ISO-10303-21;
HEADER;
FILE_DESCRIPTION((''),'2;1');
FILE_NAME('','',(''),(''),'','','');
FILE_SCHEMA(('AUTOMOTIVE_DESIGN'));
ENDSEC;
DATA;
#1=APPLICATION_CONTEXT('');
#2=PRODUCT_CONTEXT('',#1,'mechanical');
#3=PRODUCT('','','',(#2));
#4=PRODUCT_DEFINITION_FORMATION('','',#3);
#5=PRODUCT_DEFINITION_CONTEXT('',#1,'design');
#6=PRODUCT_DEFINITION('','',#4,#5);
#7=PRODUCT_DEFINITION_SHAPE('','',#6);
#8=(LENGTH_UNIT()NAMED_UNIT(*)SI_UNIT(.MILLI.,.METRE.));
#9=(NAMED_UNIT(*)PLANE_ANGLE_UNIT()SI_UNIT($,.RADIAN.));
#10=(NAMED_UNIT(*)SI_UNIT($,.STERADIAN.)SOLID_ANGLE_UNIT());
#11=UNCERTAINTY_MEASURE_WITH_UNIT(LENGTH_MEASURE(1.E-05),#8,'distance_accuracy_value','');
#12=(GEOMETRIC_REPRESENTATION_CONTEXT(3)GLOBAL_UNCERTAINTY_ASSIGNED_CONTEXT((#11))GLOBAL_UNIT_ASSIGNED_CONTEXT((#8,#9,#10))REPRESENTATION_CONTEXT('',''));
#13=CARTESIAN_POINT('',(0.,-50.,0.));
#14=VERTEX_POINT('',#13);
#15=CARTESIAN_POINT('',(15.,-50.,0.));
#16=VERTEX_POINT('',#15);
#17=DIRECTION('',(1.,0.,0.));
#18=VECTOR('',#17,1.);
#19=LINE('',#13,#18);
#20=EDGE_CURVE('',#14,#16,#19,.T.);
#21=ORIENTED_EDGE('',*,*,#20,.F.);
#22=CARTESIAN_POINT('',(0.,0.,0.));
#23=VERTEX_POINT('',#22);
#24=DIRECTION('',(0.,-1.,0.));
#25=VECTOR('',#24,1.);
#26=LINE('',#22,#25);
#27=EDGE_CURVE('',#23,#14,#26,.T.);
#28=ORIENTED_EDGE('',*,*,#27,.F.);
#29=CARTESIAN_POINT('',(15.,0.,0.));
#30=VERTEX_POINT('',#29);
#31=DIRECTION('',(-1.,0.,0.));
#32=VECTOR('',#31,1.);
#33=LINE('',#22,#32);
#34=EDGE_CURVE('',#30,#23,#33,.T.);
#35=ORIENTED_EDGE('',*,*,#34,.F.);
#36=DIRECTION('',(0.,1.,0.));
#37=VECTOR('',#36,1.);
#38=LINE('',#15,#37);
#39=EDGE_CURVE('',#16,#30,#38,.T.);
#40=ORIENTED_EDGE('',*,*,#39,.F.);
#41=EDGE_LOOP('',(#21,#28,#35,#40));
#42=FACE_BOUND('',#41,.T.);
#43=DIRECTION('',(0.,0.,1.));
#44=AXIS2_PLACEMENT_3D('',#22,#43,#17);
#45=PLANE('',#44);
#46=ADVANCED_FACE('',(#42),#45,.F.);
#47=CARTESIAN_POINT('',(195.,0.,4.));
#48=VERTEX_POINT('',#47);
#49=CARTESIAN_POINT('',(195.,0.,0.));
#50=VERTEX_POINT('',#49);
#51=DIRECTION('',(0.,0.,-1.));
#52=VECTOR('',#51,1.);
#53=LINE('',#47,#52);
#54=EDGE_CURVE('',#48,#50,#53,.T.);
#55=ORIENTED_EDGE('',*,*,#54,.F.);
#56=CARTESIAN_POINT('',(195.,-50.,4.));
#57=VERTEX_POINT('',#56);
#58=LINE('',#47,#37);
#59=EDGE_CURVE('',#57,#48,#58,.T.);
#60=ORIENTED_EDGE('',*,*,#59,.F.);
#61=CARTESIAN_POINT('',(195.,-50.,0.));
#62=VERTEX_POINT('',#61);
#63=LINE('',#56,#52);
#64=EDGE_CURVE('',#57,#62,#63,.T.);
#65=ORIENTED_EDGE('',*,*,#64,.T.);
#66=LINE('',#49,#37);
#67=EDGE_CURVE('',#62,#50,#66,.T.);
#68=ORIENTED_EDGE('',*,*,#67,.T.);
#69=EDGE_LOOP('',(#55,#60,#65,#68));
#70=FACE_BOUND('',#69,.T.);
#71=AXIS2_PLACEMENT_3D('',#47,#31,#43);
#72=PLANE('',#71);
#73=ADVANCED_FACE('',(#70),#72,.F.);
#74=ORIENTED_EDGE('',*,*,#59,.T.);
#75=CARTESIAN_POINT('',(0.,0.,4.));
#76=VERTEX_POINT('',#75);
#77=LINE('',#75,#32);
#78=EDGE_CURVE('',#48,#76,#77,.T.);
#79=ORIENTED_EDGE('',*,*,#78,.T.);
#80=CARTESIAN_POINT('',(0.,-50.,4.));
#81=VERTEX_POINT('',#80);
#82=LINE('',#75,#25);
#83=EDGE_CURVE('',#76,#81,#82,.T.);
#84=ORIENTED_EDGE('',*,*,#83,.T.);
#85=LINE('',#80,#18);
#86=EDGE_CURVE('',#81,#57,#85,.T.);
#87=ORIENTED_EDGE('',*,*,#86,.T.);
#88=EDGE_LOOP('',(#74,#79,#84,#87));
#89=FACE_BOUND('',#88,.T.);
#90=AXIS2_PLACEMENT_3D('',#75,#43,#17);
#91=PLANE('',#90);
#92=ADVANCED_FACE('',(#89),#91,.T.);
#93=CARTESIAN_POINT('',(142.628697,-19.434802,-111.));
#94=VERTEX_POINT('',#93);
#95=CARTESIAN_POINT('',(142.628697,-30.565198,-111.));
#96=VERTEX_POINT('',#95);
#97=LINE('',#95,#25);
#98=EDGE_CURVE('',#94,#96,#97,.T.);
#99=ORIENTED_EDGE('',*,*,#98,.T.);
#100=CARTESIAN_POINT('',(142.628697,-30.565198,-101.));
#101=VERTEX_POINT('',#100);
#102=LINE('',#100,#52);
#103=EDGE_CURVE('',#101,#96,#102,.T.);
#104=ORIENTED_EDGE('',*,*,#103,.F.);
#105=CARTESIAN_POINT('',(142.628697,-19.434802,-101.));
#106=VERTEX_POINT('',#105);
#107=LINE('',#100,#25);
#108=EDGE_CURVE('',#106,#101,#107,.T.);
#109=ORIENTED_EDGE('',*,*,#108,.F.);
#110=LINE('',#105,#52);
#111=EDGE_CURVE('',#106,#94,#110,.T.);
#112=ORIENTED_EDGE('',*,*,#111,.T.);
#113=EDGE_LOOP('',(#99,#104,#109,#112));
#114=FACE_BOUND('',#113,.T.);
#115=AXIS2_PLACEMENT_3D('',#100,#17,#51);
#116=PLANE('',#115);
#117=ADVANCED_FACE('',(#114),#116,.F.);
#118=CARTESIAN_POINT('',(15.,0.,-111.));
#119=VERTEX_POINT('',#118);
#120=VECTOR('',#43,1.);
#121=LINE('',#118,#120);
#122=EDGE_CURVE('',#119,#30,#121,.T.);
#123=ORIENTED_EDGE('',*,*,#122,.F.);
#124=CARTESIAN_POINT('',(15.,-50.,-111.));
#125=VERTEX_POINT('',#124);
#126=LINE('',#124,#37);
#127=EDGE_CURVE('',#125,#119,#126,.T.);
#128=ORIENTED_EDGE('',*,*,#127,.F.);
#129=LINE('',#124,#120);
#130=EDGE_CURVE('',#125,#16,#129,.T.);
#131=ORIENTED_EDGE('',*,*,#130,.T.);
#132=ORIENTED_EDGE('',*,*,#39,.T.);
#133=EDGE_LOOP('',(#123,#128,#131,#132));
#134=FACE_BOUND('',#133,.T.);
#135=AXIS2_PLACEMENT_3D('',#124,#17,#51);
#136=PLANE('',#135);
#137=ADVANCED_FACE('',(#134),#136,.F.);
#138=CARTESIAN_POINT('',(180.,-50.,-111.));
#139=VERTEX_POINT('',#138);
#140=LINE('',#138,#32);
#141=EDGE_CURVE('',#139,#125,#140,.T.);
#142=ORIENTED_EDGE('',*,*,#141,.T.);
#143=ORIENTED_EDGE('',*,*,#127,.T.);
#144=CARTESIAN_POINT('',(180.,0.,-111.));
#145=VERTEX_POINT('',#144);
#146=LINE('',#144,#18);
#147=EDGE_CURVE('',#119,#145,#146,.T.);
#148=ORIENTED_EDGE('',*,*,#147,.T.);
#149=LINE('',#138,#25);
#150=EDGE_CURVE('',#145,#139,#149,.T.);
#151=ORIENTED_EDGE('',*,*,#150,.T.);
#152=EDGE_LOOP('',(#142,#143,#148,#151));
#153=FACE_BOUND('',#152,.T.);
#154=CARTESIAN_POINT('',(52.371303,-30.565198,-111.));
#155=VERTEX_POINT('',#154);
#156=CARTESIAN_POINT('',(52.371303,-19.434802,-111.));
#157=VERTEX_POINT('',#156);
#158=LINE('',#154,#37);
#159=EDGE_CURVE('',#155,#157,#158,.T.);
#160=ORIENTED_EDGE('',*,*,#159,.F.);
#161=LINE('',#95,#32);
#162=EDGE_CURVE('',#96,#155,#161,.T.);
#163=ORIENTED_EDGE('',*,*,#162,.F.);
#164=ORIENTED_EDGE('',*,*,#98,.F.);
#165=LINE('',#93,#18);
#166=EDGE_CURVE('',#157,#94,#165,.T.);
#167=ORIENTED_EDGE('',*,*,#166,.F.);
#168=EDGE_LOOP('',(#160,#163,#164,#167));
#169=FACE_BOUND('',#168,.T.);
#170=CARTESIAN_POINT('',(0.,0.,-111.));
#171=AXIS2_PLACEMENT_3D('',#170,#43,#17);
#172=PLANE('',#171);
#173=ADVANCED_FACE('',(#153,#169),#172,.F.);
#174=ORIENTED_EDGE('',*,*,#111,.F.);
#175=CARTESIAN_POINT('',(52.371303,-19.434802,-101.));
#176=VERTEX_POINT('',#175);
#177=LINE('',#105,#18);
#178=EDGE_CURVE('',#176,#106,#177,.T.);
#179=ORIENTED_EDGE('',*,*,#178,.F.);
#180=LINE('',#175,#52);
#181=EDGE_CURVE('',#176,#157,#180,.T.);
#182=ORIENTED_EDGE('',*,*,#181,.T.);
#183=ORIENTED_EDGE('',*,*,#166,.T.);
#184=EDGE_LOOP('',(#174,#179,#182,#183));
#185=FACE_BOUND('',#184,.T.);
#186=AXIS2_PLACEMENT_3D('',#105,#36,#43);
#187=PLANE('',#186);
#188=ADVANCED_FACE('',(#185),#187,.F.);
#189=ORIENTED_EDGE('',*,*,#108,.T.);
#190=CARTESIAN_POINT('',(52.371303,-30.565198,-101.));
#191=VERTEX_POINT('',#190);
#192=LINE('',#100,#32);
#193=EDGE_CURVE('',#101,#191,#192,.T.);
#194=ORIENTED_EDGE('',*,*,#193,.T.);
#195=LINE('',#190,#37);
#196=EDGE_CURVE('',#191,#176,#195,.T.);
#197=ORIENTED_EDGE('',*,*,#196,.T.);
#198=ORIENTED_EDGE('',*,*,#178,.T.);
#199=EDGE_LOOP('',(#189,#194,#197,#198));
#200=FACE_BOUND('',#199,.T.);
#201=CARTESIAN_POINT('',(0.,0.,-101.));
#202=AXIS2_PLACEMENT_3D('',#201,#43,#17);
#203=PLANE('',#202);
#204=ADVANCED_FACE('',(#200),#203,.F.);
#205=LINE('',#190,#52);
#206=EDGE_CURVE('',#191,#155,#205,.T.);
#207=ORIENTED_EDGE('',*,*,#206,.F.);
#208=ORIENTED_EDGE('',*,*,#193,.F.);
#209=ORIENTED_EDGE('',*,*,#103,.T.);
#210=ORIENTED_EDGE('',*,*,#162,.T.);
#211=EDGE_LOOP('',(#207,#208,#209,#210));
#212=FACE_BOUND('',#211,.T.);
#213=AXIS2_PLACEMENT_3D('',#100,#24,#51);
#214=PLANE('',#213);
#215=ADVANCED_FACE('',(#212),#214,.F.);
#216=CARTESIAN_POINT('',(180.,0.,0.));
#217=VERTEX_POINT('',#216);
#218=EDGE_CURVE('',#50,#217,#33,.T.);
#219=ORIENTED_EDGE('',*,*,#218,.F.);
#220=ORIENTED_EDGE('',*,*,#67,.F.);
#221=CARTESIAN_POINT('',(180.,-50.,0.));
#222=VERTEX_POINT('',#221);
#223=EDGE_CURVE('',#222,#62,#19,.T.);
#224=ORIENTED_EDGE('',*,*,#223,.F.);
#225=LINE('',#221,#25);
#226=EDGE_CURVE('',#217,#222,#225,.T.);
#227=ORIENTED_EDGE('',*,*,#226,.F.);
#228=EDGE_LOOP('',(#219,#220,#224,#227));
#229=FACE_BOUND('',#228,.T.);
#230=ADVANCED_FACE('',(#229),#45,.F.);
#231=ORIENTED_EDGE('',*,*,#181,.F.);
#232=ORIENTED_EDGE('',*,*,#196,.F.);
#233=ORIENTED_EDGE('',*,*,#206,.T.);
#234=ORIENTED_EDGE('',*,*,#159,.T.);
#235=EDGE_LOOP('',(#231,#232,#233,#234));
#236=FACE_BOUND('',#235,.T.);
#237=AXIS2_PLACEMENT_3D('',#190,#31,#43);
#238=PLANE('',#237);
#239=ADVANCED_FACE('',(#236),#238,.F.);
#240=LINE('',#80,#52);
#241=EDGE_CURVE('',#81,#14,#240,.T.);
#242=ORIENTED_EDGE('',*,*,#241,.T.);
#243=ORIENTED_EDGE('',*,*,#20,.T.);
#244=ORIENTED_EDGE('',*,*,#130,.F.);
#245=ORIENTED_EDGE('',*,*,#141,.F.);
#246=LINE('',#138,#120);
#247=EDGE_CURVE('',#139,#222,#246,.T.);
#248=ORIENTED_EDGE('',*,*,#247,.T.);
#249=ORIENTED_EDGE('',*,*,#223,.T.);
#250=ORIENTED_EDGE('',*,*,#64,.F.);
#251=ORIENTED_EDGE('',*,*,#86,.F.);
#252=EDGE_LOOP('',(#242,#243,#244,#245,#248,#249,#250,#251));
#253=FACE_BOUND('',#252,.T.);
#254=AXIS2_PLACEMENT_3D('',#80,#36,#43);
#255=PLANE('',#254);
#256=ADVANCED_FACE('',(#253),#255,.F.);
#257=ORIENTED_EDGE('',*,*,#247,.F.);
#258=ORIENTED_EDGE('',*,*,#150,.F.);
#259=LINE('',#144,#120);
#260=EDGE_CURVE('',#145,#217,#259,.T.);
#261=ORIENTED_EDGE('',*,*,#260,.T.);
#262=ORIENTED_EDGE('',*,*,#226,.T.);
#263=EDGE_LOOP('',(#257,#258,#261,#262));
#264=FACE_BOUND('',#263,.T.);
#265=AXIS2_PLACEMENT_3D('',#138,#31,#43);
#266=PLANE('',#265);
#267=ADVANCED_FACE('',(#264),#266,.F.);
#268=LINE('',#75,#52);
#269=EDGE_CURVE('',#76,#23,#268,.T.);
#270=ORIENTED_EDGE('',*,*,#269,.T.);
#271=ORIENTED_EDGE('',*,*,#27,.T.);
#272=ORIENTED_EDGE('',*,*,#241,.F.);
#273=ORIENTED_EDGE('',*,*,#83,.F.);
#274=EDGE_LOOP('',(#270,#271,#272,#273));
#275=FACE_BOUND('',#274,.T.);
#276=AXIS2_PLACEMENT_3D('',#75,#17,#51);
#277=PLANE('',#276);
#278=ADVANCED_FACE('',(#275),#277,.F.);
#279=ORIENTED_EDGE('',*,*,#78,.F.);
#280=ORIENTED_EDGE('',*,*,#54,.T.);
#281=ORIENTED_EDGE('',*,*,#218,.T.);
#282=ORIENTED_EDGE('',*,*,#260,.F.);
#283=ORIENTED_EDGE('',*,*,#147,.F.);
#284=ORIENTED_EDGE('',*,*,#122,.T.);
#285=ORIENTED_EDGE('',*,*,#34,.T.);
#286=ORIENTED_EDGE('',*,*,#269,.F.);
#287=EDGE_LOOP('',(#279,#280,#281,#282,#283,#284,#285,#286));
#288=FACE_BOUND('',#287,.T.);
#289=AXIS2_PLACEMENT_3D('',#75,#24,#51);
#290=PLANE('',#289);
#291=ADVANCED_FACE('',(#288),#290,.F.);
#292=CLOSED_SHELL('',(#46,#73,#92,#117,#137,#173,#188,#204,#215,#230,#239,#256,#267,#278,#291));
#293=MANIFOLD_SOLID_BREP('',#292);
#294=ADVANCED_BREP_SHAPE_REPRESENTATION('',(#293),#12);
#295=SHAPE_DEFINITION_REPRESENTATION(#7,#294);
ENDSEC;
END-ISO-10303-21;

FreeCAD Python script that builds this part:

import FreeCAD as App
import Part
import Sketcher
from FreeCAD import Vector


def add_polygon(sketch, points):
    """Adds a closed chain of lines whose ends are joined by coincident constraints."""
    first, n = sketch.GeometryCount, len(points)
    for a, b in zip(points, points[1:] + points[:1]):
        sketch.addGeometry(Part.LineSegment(App.Vector(*a, 0), App.Vector(*b, 0)), False)
    for i in range(n):
        sketch.addConstraint(Sketcher.Constraint("Coincident", first + i, 2, first + (i + 1) % n, 1))

doc = App.newDocument("Part")
params = doc.addObject("Spreadsheet::Sheet", "Params")
for row, (alias, value) in enumerate([
    ("sketch1_width", "195 mm"),
    ("sketch1_height", "50 mm"),
    ("pad1_length", "4 mm"),
    ("sketch2_width", "165 mm"),
    ("sketch2_height", "50 mm"),
    ("pad2_length", "111 mm"),
    ("pocket1_length", "10 mm"),
], start=1):
    params.set(f"A{row}", alias)
    params.set(f"B{row}", "=" + value)
    params.setAlias(f"B{row}", alias)

body = doc.addObject("PartDesign::Body", "Body")

# Sketch on XY plane
sketch1 = body.newObject("Sketcher::SketchObject", "Sketch")
sketch1.AttachmentSupport = (doc.getObject("XY_Plane"), [""])
sketch1.MapMode = "FlatFace"
add_polygon(sketch1, [(0, 0), (0, -50), (195, -50), (195, 0)])  # lines 0-3
sketch1.addConstraint([
    Sketcher.Constraint("Vertical", 0),
    Sketcher.Constraint("Horizontal", 1),
    Sketcher.Constraint("Vertical", 2),
    Sketcher.Constraint("Horizontal", 3),
    Sketcher.Constraint("Coincident", 3, 2, -1, 1),
    Sketcher.Constraint("DistanceX", 1, 1, 1, 2, 195.0),
    Sketcher.Constraint("DistanceY", 0, 2, 0, 1, 50.0),
])
sketch1.setExpression("Constraints[9]", "Params.sketch1_width")
sketch1.setExpression("Constraints[10]", "Params.sketch1_height")
pad1 = body.newObject("PartDesign::Pad", "Pad")
pad1.Profile = sketch1
pad1.setExpression("Length", "Params.pad1_length")

# Sketch on XY plane
sketch2 = body.newObject("Sketcher::SketchObject", "Sketch001")
sketch2.AttachmentSupport = (doc.getObject("XY_Plane"), [""])
sketch2.MapMode = "FlatFace"
add_polygon(sketch2, [(180, 0), (180, -50), (15, -50), (15, 0)])  # lines 0-3
sketch2.addConstraint([
    Sketcher.Constraint("Vertical", 0),
    Sketcher.Constraint("Horizontal", 1),
    Sketcher.Constraint("Vertical", 2),
    Sketcher.Constraint("Horizontal", 3),
    Sketcher.Constraint("PointOnObject", 2, 2, -1),
    Sketcher.Constraint("DistanceX", 1, 2, 1, 1, 165.0),
    Sketcher.Constraint("DistanceY", 0, 2, 0, 1, 50.0),
    Sketcher.Constraint("DistanceX", -1, 1, 0, 2, 180.0),
])
sketch2.setExpression("Constraints[9]", "Params.sketch2_width")
sketch2.setExpression("Constraints[10]", "Params.sketch2_height")
pad2 = body.newObject("PartDesign::Pad", "Pad001")
pad2.Profile = sketch2
pad2.setExpression("Length", "Params.pad2_length")
pad2.Reversed = True

# Sketch on XY plane
sketch3 = body.newObject("Sketcher::SketchObject", "Sketch002")
sketch3.AttachmentSupport = (doc.getObject("XY_Plane"), [""])
sketch3.MapMode = "FlatFace"
sketch3.AttachmentOffset = App.Placement(Vector(0, 0, -111), App.Rotation())
add_polygon(sketch3, [(143, -19), (143, -31), (52, -31), (52, -19)])  # lines 0-3
sketch3.addConstraint([
    Sketcher.Constraint("Vertical", 0),
    Sketcher.Constraint("Horizontal", 1),
    Sketcher.Constraint("Vertical", 2),
    Sketcher.Constraint("Horizontal", 3),
    Sketcher.Constraint("DistanceY", 0, 2, -1, 1, 30.565198),
    Sketcher.Constraint("DistanceY", 2, 2, -1, 1, 19.434802),
    Sketcher.Constraint("DistanceX", 1, 2, 1, 1, 90.257395),
    Sketcher.Constraint("DistanceX", -1, 1, 0, 2, 142.628697),
])
pocket1 = body.newObject("PartDesign::Pocket", "Pocket")
pocket1.Profile = sketch3
pocket1.setExpression("Length", "Params.pocket1_length")
pocket1.Reversed = True

doc.recompute()
